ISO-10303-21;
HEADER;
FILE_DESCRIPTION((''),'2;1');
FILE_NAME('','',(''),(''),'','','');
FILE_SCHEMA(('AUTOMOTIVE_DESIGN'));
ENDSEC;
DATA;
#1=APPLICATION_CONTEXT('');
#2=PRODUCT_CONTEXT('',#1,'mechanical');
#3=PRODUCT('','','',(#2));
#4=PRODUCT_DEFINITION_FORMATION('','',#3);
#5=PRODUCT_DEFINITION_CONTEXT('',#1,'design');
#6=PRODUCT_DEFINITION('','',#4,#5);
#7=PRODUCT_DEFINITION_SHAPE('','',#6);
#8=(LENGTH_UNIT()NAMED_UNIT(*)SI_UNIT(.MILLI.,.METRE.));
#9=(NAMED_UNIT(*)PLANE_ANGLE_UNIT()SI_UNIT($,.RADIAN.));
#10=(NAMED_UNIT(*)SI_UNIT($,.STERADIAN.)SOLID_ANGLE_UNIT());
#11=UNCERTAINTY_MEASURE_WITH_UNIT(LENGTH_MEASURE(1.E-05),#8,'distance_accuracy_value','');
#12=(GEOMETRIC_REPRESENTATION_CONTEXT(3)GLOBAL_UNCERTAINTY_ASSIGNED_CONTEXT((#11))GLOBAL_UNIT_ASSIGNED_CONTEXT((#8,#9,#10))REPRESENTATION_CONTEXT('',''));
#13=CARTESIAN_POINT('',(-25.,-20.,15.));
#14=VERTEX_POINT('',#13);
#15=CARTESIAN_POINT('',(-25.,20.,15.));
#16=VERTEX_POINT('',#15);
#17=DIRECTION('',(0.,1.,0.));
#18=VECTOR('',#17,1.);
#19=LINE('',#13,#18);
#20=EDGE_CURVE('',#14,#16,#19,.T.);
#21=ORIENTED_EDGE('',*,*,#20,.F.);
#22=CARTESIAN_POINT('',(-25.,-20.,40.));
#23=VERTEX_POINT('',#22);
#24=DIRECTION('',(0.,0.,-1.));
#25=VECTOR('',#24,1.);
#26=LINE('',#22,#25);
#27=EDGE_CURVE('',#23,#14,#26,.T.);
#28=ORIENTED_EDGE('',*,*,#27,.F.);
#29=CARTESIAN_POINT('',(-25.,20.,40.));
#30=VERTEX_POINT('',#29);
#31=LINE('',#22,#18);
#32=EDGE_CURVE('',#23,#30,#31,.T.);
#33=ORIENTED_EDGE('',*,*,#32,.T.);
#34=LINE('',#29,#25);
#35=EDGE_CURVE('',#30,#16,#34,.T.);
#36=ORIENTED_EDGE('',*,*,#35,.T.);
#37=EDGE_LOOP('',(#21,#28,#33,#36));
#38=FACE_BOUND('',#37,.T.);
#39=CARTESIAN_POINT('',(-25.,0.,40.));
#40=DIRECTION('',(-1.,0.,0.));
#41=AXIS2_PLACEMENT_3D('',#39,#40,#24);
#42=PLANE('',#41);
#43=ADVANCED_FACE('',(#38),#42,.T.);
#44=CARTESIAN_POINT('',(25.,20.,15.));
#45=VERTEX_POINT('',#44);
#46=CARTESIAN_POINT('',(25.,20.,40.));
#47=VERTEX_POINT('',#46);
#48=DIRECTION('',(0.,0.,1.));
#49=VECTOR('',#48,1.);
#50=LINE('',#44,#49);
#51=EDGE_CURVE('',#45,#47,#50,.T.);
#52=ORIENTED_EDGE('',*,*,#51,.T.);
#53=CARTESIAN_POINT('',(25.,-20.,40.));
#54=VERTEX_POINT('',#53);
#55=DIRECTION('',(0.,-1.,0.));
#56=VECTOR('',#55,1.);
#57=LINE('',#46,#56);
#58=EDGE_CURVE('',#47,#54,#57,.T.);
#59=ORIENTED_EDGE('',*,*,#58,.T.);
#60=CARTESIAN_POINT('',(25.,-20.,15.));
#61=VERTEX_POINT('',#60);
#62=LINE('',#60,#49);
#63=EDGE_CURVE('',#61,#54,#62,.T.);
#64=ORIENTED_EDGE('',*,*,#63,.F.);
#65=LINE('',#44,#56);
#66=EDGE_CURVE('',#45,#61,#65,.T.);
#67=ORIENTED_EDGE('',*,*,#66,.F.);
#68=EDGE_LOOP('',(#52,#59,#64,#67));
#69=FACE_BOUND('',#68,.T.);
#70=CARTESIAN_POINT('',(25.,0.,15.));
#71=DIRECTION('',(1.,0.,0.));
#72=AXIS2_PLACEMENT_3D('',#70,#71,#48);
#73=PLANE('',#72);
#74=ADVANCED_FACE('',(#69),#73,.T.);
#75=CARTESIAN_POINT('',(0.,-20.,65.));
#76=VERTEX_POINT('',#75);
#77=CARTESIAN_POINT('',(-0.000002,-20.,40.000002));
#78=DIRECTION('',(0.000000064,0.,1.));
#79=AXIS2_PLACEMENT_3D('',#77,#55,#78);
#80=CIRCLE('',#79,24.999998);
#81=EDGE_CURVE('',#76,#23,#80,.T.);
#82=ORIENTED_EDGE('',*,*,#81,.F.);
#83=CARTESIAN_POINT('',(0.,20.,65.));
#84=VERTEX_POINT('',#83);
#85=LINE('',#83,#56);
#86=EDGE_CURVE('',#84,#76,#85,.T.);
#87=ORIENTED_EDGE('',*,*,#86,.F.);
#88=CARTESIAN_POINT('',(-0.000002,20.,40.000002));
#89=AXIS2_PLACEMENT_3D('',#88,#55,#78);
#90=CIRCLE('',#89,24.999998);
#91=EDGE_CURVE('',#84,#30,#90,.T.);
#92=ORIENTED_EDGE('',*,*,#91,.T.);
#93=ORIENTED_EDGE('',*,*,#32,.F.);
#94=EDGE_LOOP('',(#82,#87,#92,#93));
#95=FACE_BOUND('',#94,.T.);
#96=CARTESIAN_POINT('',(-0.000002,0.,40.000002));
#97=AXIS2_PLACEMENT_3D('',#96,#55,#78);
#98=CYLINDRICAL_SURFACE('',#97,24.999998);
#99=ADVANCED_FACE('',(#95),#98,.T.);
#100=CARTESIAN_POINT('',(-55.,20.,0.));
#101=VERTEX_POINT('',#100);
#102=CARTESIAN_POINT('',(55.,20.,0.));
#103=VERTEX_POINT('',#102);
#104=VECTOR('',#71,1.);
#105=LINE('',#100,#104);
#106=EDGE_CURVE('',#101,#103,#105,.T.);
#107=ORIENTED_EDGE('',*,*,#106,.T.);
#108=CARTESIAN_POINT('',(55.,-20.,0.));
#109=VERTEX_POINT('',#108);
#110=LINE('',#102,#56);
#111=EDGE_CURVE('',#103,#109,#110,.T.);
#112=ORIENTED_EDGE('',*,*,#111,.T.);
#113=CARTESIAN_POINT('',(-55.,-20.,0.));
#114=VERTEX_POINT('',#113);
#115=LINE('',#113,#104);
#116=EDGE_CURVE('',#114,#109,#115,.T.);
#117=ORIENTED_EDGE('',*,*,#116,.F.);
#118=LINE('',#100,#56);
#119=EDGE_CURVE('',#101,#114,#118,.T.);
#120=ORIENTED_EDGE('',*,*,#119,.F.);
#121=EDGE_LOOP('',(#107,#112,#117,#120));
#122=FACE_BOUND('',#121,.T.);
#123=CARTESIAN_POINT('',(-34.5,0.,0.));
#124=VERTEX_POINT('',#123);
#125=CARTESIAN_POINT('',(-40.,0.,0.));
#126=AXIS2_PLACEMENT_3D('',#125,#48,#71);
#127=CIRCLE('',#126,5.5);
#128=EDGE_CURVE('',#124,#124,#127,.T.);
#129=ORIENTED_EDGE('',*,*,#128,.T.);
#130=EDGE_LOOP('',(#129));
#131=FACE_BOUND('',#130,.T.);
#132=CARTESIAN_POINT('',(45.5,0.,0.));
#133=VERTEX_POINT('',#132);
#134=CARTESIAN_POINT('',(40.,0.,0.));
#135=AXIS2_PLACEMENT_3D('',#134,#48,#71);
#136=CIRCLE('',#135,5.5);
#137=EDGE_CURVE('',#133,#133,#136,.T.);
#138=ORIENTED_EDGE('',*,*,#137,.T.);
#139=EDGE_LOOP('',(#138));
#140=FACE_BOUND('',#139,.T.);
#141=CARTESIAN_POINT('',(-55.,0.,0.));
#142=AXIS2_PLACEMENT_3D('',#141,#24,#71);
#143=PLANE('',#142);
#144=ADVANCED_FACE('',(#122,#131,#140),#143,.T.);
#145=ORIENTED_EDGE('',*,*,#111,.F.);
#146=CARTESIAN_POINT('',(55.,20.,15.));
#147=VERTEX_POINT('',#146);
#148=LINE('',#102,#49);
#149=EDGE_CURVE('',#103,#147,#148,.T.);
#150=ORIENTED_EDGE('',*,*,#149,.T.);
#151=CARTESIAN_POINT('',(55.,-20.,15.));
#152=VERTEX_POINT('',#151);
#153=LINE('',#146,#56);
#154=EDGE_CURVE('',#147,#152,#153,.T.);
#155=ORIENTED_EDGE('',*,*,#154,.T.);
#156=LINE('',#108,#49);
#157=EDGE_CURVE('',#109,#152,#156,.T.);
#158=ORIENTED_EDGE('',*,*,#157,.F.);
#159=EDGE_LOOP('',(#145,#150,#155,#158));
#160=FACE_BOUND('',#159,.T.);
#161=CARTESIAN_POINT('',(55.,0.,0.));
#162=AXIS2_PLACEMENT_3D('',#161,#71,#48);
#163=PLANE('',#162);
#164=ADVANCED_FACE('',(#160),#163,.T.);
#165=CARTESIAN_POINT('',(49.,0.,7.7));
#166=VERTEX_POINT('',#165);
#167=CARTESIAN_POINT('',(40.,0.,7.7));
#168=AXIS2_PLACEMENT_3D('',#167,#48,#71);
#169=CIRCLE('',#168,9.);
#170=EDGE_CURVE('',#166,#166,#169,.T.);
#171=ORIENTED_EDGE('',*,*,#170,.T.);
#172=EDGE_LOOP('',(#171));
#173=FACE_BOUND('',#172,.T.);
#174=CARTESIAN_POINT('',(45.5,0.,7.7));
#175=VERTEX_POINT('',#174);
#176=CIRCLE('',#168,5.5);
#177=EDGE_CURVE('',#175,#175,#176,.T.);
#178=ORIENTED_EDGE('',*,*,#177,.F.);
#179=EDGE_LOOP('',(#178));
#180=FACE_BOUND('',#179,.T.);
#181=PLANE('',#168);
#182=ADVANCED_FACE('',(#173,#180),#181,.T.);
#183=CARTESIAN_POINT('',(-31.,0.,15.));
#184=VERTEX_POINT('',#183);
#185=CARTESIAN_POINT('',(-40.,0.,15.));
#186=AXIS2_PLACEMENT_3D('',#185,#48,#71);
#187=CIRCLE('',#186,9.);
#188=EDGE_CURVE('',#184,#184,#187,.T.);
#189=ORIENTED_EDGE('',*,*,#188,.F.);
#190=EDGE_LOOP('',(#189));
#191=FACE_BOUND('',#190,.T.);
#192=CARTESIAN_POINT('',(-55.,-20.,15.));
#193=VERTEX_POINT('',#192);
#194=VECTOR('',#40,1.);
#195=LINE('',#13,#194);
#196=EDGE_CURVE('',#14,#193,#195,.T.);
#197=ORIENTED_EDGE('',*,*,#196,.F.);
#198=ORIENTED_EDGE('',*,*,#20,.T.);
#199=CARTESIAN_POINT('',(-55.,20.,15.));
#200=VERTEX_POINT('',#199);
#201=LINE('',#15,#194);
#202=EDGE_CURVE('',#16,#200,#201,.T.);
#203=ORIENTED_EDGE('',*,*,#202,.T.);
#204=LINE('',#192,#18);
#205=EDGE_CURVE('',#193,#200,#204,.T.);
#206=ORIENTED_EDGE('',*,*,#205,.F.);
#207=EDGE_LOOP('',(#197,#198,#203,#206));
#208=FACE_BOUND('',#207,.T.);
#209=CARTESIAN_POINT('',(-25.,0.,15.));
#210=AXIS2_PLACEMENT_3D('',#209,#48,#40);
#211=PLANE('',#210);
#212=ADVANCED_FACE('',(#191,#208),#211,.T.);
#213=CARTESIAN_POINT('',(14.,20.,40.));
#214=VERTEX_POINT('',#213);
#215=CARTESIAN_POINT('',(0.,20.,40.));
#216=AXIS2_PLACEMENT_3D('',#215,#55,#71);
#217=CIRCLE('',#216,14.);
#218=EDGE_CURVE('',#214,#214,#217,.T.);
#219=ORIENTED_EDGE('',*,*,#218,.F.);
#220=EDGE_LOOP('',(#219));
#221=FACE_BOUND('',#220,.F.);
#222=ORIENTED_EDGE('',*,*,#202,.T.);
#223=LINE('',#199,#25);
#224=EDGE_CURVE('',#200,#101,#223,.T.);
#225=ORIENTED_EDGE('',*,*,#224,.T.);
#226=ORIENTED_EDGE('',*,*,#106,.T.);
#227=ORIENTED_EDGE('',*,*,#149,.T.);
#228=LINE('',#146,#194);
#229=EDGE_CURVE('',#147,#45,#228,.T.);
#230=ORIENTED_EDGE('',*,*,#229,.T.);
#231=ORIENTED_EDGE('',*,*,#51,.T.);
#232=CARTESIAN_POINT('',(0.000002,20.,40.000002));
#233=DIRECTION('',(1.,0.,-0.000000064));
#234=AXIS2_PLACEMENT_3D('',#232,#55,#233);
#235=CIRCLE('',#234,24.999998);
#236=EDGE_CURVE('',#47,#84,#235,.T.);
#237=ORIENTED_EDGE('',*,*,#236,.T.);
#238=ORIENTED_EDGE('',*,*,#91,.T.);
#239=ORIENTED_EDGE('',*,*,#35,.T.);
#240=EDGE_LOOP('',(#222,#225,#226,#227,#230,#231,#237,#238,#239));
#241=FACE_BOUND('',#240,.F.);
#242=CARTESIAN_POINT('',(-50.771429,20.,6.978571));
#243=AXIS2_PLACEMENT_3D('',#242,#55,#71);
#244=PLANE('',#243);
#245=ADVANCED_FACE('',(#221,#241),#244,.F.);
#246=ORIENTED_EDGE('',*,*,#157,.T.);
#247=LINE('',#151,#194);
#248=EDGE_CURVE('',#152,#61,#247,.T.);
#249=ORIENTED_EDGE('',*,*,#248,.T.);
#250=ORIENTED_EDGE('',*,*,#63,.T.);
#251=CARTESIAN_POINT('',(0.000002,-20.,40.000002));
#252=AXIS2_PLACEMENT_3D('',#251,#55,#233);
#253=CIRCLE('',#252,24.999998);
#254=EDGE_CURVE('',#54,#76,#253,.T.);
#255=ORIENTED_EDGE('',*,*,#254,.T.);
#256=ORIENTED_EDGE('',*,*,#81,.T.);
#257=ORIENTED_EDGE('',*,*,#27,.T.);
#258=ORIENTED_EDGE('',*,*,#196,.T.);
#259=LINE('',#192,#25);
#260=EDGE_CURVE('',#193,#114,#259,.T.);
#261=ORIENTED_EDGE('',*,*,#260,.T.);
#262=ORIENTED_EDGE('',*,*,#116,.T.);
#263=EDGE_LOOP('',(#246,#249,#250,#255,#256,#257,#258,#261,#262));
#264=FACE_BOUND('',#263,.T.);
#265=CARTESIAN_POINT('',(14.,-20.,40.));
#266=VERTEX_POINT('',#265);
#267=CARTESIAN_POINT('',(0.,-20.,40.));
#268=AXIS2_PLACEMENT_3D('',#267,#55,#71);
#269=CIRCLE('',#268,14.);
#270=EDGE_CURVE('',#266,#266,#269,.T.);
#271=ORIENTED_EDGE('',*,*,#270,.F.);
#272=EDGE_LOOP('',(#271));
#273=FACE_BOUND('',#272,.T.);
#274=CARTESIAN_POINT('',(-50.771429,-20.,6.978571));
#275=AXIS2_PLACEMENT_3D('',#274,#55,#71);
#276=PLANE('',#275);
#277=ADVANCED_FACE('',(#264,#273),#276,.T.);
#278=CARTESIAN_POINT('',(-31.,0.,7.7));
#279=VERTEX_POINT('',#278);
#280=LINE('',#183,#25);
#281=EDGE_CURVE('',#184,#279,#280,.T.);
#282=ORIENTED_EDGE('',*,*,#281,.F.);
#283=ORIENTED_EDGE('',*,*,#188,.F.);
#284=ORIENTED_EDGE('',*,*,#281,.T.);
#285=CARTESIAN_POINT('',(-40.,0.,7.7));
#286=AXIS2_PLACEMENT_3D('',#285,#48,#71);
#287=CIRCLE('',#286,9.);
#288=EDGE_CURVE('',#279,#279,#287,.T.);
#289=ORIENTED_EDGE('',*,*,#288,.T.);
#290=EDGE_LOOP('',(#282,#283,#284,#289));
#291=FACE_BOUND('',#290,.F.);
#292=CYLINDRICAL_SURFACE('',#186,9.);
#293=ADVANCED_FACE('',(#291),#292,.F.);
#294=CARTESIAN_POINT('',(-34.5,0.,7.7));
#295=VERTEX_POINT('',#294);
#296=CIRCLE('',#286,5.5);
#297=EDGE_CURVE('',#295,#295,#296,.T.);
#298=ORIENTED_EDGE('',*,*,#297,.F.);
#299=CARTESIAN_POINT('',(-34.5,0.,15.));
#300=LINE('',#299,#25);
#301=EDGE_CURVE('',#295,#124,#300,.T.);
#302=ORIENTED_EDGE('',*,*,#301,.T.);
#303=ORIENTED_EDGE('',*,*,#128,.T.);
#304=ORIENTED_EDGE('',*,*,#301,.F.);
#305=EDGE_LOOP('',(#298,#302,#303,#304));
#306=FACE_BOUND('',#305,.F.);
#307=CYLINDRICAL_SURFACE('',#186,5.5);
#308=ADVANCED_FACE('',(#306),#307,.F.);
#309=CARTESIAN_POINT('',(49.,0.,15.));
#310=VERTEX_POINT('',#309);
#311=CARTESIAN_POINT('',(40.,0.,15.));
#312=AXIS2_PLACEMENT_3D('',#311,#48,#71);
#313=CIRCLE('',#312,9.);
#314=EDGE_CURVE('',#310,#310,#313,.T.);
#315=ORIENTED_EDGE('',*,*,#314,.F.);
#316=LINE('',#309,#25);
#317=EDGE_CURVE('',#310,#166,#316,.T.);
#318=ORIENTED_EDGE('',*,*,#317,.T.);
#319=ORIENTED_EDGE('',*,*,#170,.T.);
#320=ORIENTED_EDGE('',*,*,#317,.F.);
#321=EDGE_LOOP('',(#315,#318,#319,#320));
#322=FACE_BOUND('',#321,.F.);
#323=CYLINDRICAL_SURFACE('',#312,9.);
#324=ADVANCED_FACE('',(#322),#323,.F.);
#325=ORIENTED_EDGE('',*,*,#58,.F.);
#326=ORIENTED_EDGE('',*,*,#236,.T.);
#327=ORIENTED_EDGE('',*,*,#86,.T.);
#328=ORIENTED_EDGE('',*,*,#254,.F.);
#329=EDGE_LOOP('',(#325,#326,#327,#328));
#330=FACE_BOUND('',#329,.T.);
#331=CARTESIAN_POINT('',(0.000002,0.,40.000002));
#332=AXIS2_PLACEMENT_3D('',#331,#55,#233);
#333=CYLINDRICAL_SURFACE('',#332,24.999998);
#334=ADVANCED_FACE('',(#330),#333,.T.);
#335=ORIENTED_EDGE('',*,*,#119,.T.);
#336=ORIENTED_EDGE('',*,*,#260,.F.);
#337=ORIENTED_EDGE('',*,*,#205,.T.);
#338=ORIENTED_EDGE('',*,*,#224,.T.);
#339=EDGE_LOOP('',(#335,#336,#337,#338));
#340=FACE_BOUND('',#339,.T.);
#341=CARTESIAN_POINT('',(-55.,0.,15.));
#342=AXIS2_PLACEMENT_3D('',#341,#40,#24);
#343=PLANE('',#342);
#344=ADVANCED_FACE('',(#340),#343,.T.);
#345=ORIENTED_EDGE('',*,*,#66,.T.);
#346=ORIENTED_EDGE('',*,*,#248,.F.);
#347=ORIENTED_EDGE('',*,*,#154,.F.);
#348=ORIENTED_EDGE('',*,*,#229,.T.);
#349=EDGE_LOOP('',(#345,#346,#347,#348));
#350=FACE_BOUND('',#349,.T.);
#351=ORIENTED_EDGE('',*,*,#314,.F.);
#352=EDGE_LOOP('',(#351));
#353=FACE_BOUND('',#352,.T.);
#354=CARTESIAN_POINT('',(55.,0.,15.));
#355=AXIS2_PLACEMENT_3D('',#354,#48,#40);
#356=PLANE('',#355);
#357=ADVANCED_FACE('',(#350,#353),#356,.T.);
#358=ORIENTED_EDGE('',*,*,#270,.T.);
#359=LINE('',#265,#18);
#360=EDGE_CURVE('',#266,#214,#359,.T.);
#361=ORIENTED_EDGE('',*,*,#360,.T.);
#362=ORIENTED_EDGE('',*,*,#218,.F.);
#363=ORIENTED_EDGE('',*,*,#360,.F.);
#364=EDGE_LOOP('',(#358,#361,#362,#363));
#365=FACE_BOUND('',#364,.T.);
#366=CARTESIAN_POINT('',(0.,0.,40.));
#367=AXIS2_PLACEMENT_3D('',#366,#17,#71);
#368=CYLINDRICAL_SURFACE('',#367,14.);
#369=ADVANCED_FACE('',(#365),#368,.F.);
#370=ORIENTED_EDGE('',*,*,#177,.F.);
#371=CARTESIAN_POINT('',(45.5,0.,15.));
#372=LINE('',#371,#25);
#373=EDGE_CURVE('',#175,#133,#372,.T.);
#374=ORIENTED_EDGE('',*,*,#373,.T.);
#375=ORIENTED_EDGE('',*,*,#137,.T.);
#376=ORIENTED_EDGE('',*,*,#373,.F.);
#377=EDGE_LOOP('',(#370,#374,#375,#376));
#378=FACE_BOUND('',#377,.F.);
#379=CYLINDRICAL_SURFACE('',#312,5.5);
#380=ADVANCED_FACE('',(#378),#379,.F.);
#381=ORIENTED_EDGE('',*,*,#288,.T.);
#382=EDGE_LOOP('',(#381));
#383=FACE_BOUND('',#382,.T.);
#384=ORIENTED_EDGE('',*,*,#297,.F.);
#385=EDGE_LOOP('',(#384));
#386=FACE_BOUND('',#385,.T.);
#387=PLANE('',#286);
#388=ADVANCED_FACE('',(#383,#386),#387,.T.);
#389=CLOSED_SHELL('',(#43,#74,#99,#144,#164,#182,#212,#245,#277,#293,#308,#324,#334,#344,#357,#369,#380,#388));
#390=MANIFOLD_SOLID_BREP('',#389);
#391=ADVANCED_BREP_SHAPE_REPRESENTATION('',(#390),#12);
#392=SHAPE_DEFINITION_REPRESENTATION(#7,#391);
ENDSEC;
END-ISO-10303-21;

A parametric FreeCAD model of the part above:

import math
import FreeCAD as App
import Part
import Sketcher

V = App.Vector

doc = App.newDocument("Part")
params = doc.addObject("Spreadsheet::Sheet", "Params")
for row, (alias, value) in enumerate([
    ("sketch1_diameter", "28 mm"),
    ("sketch1_radius", "24.999998 mm"),
    ("sketch1_width", "110 mm"),
    ("sketch1_height", "15 mm"),
    ("sketch1_height2", "25 mm"),
    ("pad1_length", "40 mm"),
    ("sketch2_diameter", "18 mm"),
    ("sketch2_diameter2", "11 mm"),
    ("pocket1_length", "7.3 mm"),
    ("sketch3_diameter", "11 mm"),
    ("pocket2_length", "15 mm"),
], start=1):
    params.set(f"A{row}", alias)
    params.set(f"B{row}", "=" + value)
    params.setAlias(f"B{row}", alias)

body = doc.addObject("PartDesign::Body", "Body")

sketch1 = body.newObject("Sketcher::SketchObject", "Sketch")
sketch1.AttachmentSupport = (doc.getObject("XZ_Plane"), [""])
sketch1.MapMode = "FlatFace"
sketch1.addGeometry([
    Part.LineSegment(V(-55, 15, 0), V(-55, 0, 0)),
    Part.LineSegment(V(-55, 0, 0), V(55, 0, 0)),
    Part.LineSegment(V(55, 0, 0), V(55, 15, 0)),
    Part.LineSegment(V(55, 15, 0), V(25, 15, 0)),
    Part.LineSegment(V(25, 15, 0), V(25, 40, 0)),
    Part.ArcOfCircle(Part.Circle(V(0, 40, 0), V(0, 0, 1), 25), math.radians(0), math.radians(90)),
    Part.ArcOfCircle(Part.Circle(V(0, 40, 0), V(0, 0, 1), 25), math.radians(90), math.radians(180)),
    Part.LineSegment(V(-25, 40, 0), V(-25, 15, 0)),
    Part.LineSegment(V(-25, 15, 0), V(-55, 15, 0)),
    Part.Circle(V(0, 40, 0), V(0, 0, 1), 14),
], False)
sketch1.addConstraint([
    Sketcher.Constraint("Coincident", 0, 2, 1, 1),
    Sketcher.Constraint("Coincident", 1, 2, 2, 1),
    Sketcher.Constraint("Coincident", 2, 2, 3, 1),
    Sketcher.Constraint("Coincident", 3, 2, 4, 1),
    Sketcher.Constraint("Tangent", 4, 2, 5, 1),
    Sketcher.Constraint("Tangent", 5, 2, 6, 1),
    Sketcher.Constraint("Tangent", 6, 2, 7, 1),
    Sketcher.Constraint("Coincident", 7, 2, 8, 1),
    Sketcher.Constraint("Coincident", 8, 2, 0, 1),
    Sketcher.Constraint("Vertical", 0),
    Sketcher.Constraint("Horizontal", 1),
    Sketcher.Constraint("Vertical", 2),
    Sketcher.Constraint("Horizontal", 3),
    Sketcher.Constraint("Vertical", 4),
    Sketcher.Constraint("Vertical", 7),
    Sketcher.Constraint("Horizontal", 8),
    Sketcher.Constraint("Coincident", 9, 3, 5, 3),
    Sketcher.Constraint("Equal", 5, 6),
    Sketcher.Constraint("Symmetric", 0, 2, 1, 2, -1, 1),
    Sketcher.Constraint("Symmetric", 3, 2, 7, 2, -2),
    Sketcher.Constraint("PointOnObject", 5, 2, -2),
    Sketcher.Constraint("Diameter", 9, 28.0),
    Sketcher.Constraint("Radius", 5, 24.999998),
    Sketcher.Constraint("DistanceX", 1, 1, 1, 2, 110.0),
    Sketcher.Constraint("DistanceY", 0, 2, 0, 1, 15.0),
    Sketcher.Constraint("DistanceY", 4, 1, 4, 2, 25.0),
])
sketch1.setExpression("Constraints[21]", "Params.sketch1_diameter")
sketch1.setExpression("Constraints[22]", "Params.sketch1_radius")
sketch1.setExpression("Constraints[23]", "Params.sketch1_width")
sketch1.setExpression("Constraints[24]", "Params.sketch1_height")
sketch1.setExpression("Constraints[25]", "Params.sketch1_height2")
pad1 = body.newObject("PartDesign::Pad", "Pad")
pad1.Profile = sketch1
pad1.setExpression("Length", "Params.pad1_length")
pad1.Midplane = True

sketch2 = body.newObject("Sketcher::SketchObject", "Sketch001")
sketch2.AttachmentSupport = (doc.getObject("XY_Plane"), [""])
sketch2.MapMode = "FlatFace"
sketch2.AttachmentOffset = App.Placement(V(0, 0, 15), App.Rotation())
sketch2.addGeometry([
    Part.Circle(V(-40, 0, 0), V(0, 0, 1), 9),
    Part.Circle(V(-40, 0, 0), V(0, 0, 1), 6),
    Part.Circle(V(40, 0, 0), V(0, 0, 1), 9),
    Part.Circle(V(40, 0, 0), V(0, 0, 1), 6),
], False)
sketch2.addConstraint([
    Sketcher.Constraint("Coincident", 1, 3, 0, 3),
    Sketcher.Constraint("Coincident", 3, 3, 2, 3),
    Sketcher.Constraint("Equal", 0, 2),
    Sketcher.Constraint("Equal", 1, 3),
    Sketcher.Constraint("Symmetric", 0, 3, 2, 3, -1, 1),
    Sketcher.Constraint("PointOnObject", 0, 3, -1),
    Sketcher.Constraint("Diameter", 0, 18.0),
    Sketcher.Constraint("Diameter", 1, 11.0),
    Sketcher.Constraint("DistanceX", 0, 3, -1, 1, 40.0),
])
sketch2.setExpression("Constraints[6]", "Params.sketch2_diameter")
sketch2.setExpression("Constraints[7]", "Params.sketch2_diameter2")
pocket1 = body.newObject("PartDesign::Pocket", "Pocket")
pocket1.Profile = sketch2
pocket1.setExpression("Length", "Params.pocket1_length")

sketch3 = body.newObject("Sketcher::SketchObject", "Sketch002")
sketch3.AttachmentSupport = (doc.getObject("XY_Plane"), [""])
sketch3.MapMode = "FlatFace"
sketch3.AttachmentOffset = App.Placement(V(0, 0, 15), App.Rotation())
sketch3.addGeometry([
    Part.Circle(V(-40, 0, 0), V(0, 0, 1), 6),
    Part.Circle(V(40, 0, 0), V(0, 0, 1), 6),
], False)
sketch3.addConstraint([
    Sketcher.Constraint("Equal", 0, 1),
    Sketcher.Constraint("Symmetric", 0, 3, 1, 3, -1, 1),
    Sketcher.Constraint("PointOnObject", 0, 3, -1),
    Sketcher.Constraint("Diameter", 0, 11.0),
    Sketcher.Constraint("DistanceX", 0, 3, -1, 1, 40.0),
])
sketch3.setExpression("Constraints[3]", "Params.sketch3_diameter")
pocket2 = body.newObject("PartDesign::Pocket", "Pocket001")
pocket2.Profile = sketch3
pocket2.setExpression("Length", "Params.pocket2_length")

doc.recompute()
